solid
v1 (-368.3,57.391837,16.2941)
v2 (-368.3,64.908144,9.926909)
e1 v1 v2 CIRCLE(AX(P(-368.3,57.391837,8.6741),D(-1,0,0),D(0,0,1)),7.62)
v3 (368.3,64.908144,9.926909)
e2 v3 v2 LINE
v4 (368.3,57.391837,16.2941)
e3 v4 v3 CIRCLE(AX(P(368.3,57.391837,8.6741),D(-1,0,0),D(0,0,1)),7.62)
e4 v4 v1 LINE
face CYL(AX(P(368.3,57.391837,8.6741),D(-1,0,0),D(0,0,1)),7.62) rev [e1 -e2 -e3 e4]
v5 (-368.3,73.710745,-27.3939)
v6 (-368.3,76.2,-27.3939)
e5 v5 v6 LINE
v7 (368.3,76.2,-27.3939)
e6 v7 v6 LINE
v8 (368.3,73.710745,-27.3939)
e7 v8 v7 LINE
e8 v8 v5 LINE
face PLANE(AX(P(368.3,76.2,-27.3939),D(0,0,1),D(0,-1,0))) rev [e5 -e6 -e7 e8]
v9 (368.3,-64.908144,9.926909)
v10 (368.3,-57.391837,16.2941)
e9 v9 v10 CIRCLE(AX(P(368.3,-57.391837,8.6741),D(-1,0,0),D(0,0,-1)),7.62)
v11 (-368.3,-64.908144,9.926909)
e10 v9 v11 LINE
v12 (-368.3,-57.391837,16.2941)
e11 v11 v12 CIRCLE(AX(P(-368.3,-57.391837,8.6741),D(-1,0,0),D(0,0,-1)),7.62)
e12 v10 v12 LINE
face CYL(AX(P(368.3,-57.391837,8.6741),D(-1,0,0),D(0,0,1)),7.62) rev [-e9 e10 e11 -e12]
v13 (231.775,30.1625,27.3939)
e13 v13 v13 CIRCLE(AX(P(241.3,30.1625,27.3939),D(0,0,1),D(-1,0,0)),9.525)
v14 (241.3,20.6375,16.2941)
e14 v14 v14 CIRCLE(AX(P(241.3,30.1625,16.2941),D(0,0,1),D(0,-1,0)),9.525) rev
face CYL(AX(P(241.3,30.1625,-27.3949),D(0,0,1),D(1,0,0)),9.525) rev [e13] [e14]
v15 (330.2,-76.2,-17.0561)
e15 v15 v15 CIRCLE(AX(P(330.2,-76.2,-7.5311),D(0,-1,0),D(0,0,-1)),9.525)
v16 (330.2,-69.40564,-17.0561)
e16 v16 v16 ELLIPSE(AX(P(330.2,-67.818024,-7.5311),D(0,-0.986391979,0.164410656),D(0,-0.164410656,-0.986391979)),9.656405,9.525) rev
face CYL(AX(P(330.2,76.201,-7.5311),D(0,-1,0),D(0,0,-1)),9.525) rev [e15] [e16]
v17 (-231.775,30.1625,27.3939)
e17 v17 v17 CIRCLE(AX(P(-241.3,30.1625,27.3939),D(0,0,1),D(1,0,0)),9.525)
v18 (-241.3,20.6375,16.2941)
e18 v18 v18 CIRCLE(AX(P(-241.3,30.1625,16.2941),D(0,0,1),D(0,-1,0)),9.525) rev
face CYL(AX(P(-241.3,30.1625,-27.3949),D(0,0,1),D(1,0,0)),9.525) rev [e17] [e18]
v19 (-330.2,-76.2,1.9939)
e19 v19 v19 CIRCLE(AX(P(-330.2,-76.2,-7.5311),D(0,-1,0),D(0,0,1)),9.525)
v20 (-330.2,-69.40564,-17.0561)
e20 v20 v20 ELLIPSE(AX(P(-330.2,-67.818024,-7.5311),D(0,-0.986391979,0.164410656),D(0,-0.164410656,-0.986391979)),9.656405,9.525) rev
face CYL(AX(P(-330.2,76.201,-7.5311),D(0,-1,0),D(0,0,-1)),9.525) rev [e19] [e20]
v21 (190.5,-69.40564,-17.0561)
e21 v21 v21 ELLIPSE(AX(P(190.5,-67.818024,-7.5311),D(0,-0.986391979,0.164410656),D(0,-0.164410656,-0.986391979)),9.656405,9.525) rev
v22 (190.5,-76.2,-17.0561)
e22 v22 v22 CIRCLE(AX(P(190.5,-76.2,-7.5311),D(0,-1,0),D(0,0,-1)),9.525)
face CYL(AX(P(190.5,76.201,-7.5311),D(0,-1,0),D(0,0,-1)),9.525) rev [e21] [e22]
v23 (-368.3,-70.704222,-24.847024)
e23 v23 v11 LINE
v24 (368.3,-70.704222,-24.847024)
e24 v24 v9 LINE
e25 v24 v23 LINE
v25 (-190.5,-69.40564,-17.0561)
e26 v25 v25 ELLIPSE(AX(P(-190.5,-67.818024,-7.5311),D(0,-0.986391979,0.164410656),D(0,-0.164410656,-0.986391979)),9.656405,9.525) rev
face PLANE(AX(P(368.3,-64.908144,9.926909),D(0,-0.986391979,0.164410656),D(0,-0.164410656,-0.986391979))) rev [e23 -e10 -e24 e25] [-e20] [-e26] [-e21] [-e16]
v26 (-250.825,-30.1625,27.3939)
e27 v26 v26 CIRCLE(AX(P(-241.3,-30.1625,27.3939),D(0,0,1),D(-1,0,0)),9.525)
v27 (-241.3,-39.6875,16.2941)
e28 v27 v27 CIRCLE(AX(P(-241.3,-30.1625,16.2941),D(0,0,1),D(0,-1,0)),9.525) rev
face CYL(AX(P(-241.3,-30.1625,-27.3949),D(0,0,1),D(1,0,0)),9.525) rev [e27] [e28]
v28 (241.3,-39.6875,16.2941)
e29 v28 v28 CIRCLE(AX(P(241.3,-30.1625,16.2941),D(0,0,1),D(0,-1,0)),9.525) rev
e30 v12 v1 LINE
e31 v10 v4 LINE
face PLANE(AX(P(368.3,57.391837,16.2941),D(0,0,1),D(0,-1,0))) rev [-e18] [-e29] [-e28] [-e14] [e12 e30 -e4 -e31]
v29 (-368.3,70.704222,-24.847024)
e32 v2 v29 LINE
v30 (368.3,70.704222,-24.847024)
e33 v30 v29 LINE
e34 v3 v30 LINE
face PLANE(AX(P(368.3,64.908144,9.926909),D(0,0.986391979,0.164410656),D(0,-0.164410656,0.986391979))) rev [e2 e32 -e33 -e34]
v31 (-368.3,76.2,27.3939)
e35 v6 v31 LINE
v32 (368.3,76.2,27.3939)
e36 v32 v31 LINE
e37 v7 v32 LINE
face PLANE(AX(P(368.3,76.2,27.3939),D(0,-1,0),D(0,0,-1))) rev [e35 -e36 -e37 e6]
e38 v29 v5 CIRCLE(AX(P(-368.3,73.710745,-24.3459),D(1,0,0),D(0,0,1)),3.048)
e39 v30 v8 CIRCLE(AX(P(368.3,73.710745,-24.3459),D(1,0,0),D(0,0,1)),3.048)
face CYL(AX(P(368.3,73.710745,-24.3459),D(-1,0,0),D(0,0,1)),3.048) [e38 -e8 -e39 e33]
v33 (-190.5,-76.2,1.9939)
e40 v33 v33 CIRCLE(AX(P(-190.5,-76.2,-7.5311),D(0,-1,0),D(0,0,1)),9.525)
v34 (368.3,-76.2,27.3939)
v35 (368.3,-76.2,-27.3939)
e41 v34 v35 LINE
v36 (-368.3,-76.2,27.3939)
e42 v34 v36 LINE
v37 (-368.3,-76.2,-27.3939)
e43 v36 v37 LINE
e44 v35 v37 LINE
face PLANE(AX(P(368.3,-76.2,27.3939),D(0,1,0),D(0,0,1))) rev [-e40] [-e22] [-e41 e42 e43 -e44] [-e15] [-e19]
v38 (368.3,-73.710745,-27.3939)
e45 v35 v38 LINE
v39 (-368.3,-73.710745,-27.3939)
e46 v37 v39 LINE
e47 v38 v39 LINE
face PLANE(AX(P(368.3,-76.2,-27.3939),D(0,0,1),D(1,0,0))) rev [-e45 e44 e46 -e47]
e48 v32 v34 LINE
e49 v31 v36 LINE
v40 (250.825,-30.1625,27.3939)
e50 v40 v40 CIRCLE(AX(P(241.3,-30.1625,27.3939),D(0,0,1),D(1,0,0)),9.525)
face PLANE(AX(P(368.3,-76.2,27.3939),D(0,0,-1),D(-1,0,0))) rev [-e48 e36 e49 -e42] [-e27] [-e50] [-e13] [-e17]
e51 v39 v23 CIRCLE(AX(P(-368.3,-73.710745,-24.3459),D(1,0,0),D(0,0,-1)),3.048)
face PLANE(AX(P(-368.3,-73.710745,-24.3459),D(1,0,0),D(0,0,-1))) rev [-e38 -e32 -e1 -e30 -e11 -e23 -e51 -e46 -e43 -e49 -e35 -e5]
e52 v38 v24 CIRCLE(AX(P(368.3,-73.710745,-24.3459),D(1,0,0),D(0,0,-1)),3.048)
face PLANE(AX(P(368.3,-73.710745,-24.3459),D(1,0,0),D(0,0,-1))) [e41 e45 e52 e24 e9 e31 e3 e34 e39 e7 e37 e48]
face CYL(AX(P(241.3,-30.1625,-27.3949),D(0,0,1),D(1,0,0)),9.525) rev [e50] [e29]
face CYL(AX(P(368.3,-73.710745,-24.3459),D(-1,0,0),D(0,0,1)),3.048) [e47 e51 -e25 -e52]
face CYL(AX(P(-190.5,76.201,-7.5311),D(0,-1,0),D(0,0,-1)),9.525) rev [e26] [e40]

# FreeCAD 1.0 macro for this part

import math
import FreeCAD as App
import Part
import Sketcher

V = App.Vector
Q = App.Units.Quantity

doc = App.newDocument("Part")
body = doc.addObject("PartDesign::Body", "Body")

# Sketch on YZ plane
sketch1 = body.newObject("Sketcher::SketchObject", "Sketch")
sketch1.AttachmentSupport = (doc.getObject("YZ_Plane"), [""])
sketch1.MapMode = "FlatFace"
sketch1.addGeometry(Part.LineSegment(V(76.2, 27.4, 0), V(-76.2, 27.4, 0)), False)
sketch1.addGeometry(Part.LineSegment(V(-76.2, 27.4, 0), V(-76.2, -27.4, 0)), False)
sketch1.addGeometry(Part.LineSegment(V(-76.2, -27.4, 0), V(-73.7, -27.4, 0)), False)
sketch1.addGeometry(Part.ArcOfCircle(Part.Circle(V(-73.7, -24.3, 0), V(0, 0, 1), 3), math.radians(-90), math.radians(-9)), False)
sketch1.addGeometry(Part.LineSegment(V(-70.7, -24.8, 0), V(-64.9, 9.9, 0)), False)
sketch1.addGeometry(Part.ArcOfCircle(Part.Circle(V(-57.4, 8.7, 0), V(0, 0, 1), 7.6), math.radians(90), math.radians(171)), False)
sketch1.addGeometry(Part.LineSegment(V(-57.4, 16.3, 0), V(57.4, 16.3, 0)), False)
sketch1.addGeometry(Part.ArcOfCircle(Part.Circle(V(57.4, 8.7, 0), V(0, 0, 1), 7.6), math.radians(9), math.radians(90)), False)
sketch1.addGeometry(Part.LineSegment(V(64.9, 9.9, 0), V(70.7, -24.8, 0)), False)
sketch1.addGeometry(Part.ArcOfCircle(Part.Circle(V(73.7, -24.3, 0), V(0, 0, 1), 3), math.radians(-171), math.radians(-90)), False)
sketch1.addGeometry(Part.LineSegment(V(73.7, -27.4, 0), V(76.2, -27.4, 0)), False)
sketch1.addGeometry(Part.LineSegment(V(76.2, -27.4, 0), V(76.2, 27.4, 0)), False)
sketch1.addConstraint(Sketcher.Constraint("Coincident", 0, 2, 1, 1))
sketch1.addConstraint(Sketcher.Constraint("Coincident", 1, 2, 2, 1))
sketch1.addConstraint(Sketcher.Constraint("Tangent", 2, 2, 3, 1))
sketch1.addConstraint(Sketcher.Constraint("Tangent", 3, 2, 4, 1))
sketch1.addConstraint(Sketcher.Constraint("Tangent", 4, 2, 5, 2))
sketch1.addConstraint(Sketcher.Constraint("Tangent", 5, 1, 6, 1))
sketch1.addConstraint(Sketcher.Constraint("Tangent", 6, 2, 7, 2))
sketch1.addConstraint(Sketcher.Constraint("Tangent", 7, 1, 8, 1))
sketch1.addConstraint(Sketcher.Constraint("Tangent", 8, 2, 9, 1))
sketch1.addConstraint(Sketcher.Constraint("Tangent", 9, 2, 10, 1))
sketch1.addConstraint(Sketcher.Constraint("Coincident", 10, 2, 11, 1))
sketch1.addConstraint(Sketcher.Constraint("Coincident", 11, 2, 0, 1))
sketch1.addConstraint(Sketcher.Constraint("Horizontal", 0))
sketch1.addConstraint(Sketcher.Constraint("Vertical", 1))
sketch1.addConstraint(Sketcher.Constraint("Horizontal", 2))
sketch1.addConstraint(Sketcher.Constraint("Horizontal", 6))
sketch1.addConstraint(Sketcher.Constraint("Horizontal", 10))
sketch1.addConstraint(Sketcher.Constraint("Vertical", 11))
sketch1.addConstraint(Sketcher.Constraint("Equal", 5, 7))
sketch1.addConstraint(Sketcher.Constraint("Equal", 3, 9))
sketch1.addConstraint(Sketcher.Constraint("Symmetric", 0, 2, 10, 2, -1, 1))
sketch1.addConstraint(Sketcher.Constraint("Symmetric", 3, 3, 9, 3, -2))
sketch1.addConstraint(Sketcher.Constraint("Horizontal", 4, 2, 7, 1))
sketch1.addConstraint(Sketcher.Constraint("Radius", 5, Q("0.3 in")))
sketch1.addConstraint(Sketcher.Constraint("DistanceX", 0, 2, 0, 1, Q("6 in")))
sketch1.addConstraint(Sketcher.Constraint("Radius", 3, Q("0.12 in")))
sketch1.addConstraint(Sketcher.Constraint("DistanceY", 3, 3, 5, 3, Q("1.3 in")))
sketch1.addConstraint(Sketcher.Constraint("DistanceY", 1, 2, 1, 1, Q("2.157 in")))
sketch1.addConstraint(Sketcher.Constraint("DistanceX", 3, 3, 4, 2, 8.802601))
sketch1.addConstraint(Sketcher.Constraint("DistanceX", 2, 1, 2, 2, 2.489255))
pad1 = body.newObject("PartDesign::Pad", "Pad")
pad1.Profile = sketch1
pad1.Length = Q("29 in")
pad1.Midplane = True

# Sketch on XZ plane
sketch2 = body.newObject("Sketcher::SketchObject", "Sketch001")
sketch2.AttachmentSupport = (doc.getObject("XZ_Plane"), [""])
sketch2.MapMode = "FlatFace"
sketch2.AttachmentOffset = App.Placement(V(0, 0, 3 * 25.4), App.Rotation())
sketch2.addGeometry(Part.Circle(V(190, -8, 0), V(0, 0, 1), 10), False)
sketch2.addConstraint(Sketcher.Constraint("Diameter", 0, Q("0.75 in")))
sketch2.addConstraint(Sketcher.Constraint("DistanceX", -1, 1, 0, 3, Q("7.5 in")))
sketch2.addConstraint(Sketcher.Constraint("DistanceY", 0, 3, -1, 1, Q("0.2965 in")))
pocket1 = body.newObject("PartDesign::Pocket", "Pocket")
pocket1.Profile = sketch2
pocket1.Type = "UpToFirst"

# Sketch on XZ plane
sketch3 = body.newObject("Sketcher::SketchObject", "Sketch002")
sketch3.AttachmentSupport = (doc.getObject("XZ_Plane"), [""])
sketch3.MapMode = "FlatFace"
sketch3.AttachmentOffset = App.Placement(V(0, 0, 3 * 25.4), App.Rotation())
sketch3.addGeometry(Part.Circle(V(-190, -8, 0), V(0, 0, 1), 10), False)
sketch3.addConstraint(Sketcher.Constraint("Diameter", 0, Q("0.75 in")))
sketch3.addConstraint(Sketcher.Constraint("DistanceX", 0, 3, -1, 1, Q("7.5 in")))
sketch3.addConstraint(Sketcher.Constraint("DistanceY", 0, 3, -1, 1, Q("0.2965 in")))
pocket2 = body.newObject("PartDesign::Pocket", "Pocket001")
pocket2.Profile = sketch3
pocket2.Type = "UpToFirst"

# Sketch on XZ plane
sketch4 = body.newObject("Sketcher::SketchObject", "Sketch003")
sketch4.AttachmentSupport = (doc.getObject("XZ_Plane"), [""])
sketch4.MapMode = "FlatFace"
sketch4.AttachmentOffset = App.Placement(V(0, 0, 3 * 25.4), App.Rotation())
sketch4.addGeometry(Part.Circle(V(330, -8, 0), V(0, 0, 1), 10), False)
sketch4.addConstraint(Sketcher.Constraint("Diameter", 0, Q("0.75 in")))
sketch4.addConstraint(Sketcher.Constraint("DistanceX", -1, 1, 0, 3, Q("13 in")))
sketch4.addConstraint(Sketcher.Constraint("DistanceY", 0, 3, -1, 1, Q("0.2965 in")))
pocket3 = body.newObject("PartDesign::Pocket", "Pocket002")
pocket3.Profile = sketch4
pocket3.Type = "UpToFirst"

# Sketch on XZ plane
sketch5 = body.newObject("Sketcher::SketchObject", "Sketch004")
sketch5.AttachmentSupport = (doc.getObject("XZ_Plane"), [""])
sketch5.MapMode = "FlatFace"
sketch5.AttachmentOffset = App.Placement(V(0, 0, 3 * 25.4), App.Rotation())
sketch5.addGeometry(Part.Circle(V(-330, -8, 0), V(0, 0, 1), 10), False)
sketch5.addConstraint(Sketcher.Constraint("Diameter", 0, Q("0.75 in")))
sketch5.addConstraint(Sketcher.Constraint("DistanceX", 0, 3, -1, 1, Q("13 in")))
sketch5.addConstraint(Sketcher.Constraint("DistanceY", 0, 3, -1, 1, Q("0.2965 in")))
pocket4 = body.newObject("PartDesign::Pocket", "Pocket003")
pocket4.Profile = sketch5
pocket4.Type = "UpToFirst"

# Sketch on XY plane
sketch6 = body.newObject("Sketcher::SketchObject", "Sketch005")
sketch6.AttachmentSupport = (doc.getObject("XY_Plane"), [""])
sketch6.MapMode = "FlatFace"
sketch6.AttachmentOffset = App.Placement(V(0, 0, 1.0785 * 25.4), App.Rotation())
sketch6.addGeometry(Part.Circle(V(241, -30, 0), V(0, 0, 1), 10), False)
sketch6.addConstraint(Sketcher.Constraint("Diameter", 0, Q("0.75 in")))
sketch6.addConstraint(Sketcher.Constraint("DistanceX", -1, 1, 0, 3, Q("9.5 in")))
sketch6.addConstraint(Sketcher.Constraint("DistanceY", 0, 3, -1, 1, Q("1.1875 in")))
pocket5 = body.newObject("PartDesign::Pocket", "Pocket004")
pocket5.Profile = sketch6
pocket5.Type = "UpToFirst"

# Sketch on XY plane
sketch7 = body.newObject("Sketcher::SketchObject", "Sketch006")
sketch7.AttachmentSupport = (doc.getObject("XY_Plane"), [""])
sketch7.MapMode = "FlatFace"
sketch7.AttachmentOffset = App.Placement(V(0, 0, 1.0785 * 25.4), App.Rotation())
sketch7.addGeometry(Part.Circle(V(-241, -30, 0), V(0, 0, 1), 10), False)
sketch7.addConstraint(Sketcher.Constraint("Diameter", 0, Q("0.75 in")))
sketch7.addConstraint(Sketcher.Constraint("DistanceX", 0, 3, -1, 1, Q("9.5 in")))
sketch7.addConstraint(Sketcher.Constraint("DistanceY", 0, 3, -1, 1, Q("1.1875 in")))
pocket6 = body.newObject("PartDesign::Pocket", "Pocket005")
pocket6.Profile = sketch7
pocket6.Type = "UpToFirst"

# Sketch on XY plane
sketch8 = body.newObject("Sketcher::SketchObject", "Sketch007")
sketch8.AttachmentSupport = (doc.getObject("XY_Plane"), [""])
sketch8.MapMode = "FlatFace"
sketch8.AttachmentOffset = App.Placement(V(0, 0, 1.0785 * 25.4), App.Rotation())
sketch8.addGeometry(Part.Circle(V(-241, 30, 0), V(0, 0, 1), 10), False)
sketch8.addConstraint(Sketcher.Constraint("Diameter", 0, Q("0.75 in")))
sketch8.addConstraint(Sketcher.Constraint("DistanceX", 0, 3, -1, 1, Q("9.5 in")))
sketch8.addConstraint(Sketcher.Constraint("DistanceY", -1, 1, 0, 3, Q("1.1875 in")))
pocket7 = body.newObject("PartDesign::Pocket", "Pocket006")
pocket7.Profile = sketch8
pocket7.Type = "UpToFirst"

# Sketch on XY plane
sketch9 = body.newObject("Sketcher::SketchObject", "Sketch008")
sketch9.AttachmentSupport = (doc.getObject("XY_Plane"), [""])
sketch9.MapMode = "FlatFace"
sketch9.AttachmentOffset = App.Placement(V(0, 0, 1.0785 * 25.4), App.Rotation())
sketch9.addGeometry(Part.Circle(V(241, 30, 0), V(0, 0, 1), 10), False)
sketch9.addConstraint(Sketcher.Constraint("Diameter", 0, Q("0.75 in")))
sketch9.addConstraint(Sketcher.Constraint("DistanceX", -1, 1, 0, 3, Q("9.5 in")))
sketch9.addConstraint(Sketcher.Constraint("DistanceY", -1, 1, 0, 3, Q("1.1875 in")))
pocket8 = body.newObject("PartDesign::Pocket", "Pocket007")
pocket8.Profile = sketch9
pocket8.Type = "UpToFirst"

doc.recompute()
